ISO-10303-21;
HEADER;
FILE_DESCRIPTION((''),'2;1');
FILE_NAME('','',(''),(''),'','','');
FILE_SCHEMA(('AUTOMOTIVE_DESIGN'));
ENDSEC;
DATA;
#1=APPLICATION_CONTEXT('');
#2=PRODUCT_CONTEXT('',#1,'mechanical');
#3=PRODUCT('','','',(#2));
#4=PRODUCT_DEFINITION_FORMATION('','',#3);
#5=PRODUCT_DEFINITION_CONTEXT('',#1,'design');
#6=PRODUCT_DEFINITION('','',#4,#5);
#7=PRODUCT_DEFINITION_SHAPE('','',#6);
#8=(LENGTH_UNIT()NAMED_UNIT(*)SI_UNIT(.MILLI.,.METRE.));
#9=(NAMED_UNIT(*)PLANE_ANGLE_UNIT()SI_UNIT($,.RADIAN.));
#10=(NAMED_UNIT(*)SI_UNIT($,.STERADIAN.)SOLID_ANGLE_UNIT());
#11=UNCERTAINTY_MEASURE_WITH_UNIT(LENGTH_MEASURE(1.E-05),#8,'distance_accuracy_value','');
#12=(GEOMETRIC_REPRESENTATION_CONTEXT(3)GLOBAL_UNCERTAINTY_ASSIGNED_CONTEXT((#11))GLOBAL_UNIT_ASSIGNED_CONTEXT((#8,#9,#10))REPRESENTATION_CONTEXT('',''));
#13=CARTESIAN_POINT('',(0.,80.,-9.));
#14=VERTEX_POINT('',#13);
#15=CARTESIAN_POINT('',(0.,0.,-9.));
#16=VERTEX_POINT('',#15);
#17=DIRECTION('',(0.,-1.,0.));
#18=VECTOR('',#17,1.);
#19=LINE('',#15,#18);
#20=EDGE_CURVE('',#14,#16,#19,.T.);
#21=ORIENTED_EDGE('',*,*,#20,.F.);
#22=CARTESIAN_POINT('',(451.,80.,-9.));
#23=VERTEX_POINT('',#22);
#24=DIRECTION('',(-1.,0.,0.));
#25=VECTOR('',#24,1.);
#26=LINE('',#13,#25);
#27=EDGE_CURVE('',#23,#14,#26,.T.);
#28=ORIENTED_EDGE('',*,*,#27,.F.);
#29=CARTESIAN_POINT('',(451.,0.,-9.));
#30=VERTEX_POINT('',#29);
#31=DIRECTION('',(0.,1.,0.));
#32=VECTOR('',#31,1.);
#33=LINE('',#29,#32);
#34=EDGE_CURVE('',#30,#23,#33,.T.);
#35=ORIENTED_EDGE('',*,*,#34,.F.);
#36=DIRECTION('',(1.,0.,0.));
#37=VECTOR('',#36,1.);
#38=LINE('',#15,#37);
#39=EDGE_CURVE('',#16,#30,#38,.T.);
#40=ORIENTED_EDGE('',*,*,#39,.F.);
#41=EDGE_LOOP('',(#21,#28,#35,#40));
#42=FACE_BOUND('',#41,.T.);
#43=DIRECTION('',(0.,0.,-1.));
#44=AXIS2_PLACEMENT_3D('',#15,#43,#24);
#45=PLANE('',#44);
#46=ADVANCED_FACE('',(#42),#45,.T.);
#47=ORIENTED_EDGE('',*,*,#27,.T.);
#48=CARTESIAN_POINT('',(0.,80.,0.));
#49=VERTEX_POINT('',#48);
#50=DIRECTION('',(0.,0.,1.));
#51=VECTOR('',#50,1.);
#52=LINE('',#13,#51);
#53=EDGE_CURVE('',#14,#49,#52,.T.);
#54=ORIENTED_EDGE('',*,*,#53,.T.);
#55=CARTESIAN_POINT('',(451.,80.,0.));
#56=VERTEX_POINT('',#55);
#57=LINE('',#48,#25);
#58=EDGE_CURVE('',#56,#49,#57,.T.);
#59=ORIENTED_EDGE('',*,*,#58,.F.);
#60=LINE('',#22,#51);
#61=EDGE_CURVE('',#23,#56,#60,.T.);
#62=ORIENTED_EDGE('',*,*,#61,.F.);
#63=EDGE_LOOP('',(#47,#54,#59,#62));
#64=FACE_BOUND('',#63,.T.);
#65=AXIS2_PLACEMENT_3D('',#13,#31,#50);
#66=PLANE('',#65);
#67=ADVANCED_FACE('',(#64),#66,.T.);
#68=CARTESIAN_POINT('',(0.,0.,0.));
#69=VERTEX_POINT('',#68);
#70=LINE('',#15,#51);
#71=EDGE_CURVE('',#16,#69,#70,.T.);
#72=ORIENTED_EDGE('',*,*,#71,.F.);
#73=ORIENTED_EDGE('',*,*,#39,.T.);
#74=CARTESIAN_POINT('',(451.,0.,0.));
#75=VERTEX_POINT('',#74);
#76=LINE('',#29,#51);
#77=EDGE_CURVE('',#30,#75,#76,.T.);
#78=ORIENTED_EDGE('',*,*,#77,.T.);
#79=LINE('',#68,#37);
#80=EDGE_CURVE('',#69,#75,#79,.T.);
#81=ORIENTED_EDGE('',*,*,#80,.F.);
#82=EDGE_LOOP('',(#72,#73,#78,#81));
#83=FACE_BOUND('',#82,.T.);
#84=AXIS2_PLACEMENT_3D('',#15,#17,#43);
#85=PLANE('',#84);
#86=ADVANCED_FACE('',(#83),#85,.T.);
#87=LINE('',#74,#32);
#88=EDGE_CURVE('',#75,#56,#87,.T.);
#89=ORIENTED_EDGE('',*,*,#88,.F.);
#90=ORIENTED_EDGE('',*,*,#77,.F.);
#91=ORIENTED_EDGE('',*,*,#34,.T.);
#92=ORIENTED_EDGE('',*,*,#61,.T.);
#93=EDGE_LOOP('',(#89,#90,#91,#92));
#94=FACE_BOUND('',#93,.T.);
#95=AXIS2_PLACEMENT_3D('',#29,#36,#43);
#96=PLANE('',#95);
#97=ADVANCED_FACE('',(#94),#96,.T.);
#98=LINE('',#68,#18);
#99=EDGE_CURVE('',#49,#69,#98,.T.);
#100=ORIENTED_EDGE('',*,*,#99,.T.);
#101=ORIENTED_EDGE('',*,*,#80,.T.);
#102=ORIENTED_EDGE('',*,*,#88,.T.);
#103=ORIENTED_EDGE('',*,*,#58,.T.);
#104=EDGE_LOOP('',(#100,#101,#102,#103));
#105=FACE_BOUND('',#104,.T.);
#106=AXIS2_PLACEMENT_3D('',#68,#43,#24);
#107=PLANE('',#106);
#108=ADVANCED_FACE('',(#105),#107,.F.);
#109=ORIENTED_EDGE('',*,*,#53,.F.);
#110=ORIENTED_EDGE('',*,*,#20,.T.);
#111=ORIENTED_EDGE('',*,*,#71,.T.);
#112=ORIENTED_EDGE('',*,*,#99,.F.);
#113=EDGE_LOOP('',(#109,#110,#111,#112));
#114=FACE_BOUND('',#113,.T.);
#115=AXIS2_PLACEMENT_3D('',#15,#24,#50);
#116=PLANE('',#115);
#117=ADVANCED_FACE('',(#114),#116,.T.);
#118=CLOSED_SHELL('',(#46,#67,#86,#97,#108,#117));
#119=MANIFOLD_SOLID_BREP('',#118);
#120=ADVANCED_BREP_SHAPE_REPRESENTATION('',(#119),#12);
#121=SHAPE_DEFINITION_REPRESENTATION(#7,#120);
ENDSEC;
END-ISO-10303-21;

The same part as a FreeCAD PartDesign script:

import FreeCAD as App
import Part
import Sketcher
from FreeCAD import Vector


def add_polygon(sketch, points):
    """Adds a closed chain of lines whose ends are joined by coincident constraints."""
    first, n = sketch.GeometryCount, len(points)
    for a, b in zip(points, points[1:] + points[:1]):
        sketch.addGeometry(Part.LineSegment(App.Vector(*a, 0), App.Vector(*b, 0)), False)
    for i in range(n):
        sketch.addConstraint(Sketcher.Constraint("Coincident", first + i, 2, first + (i + 1) % n, 1))

doc = App.newDocument("Part")
params = doc.addObject("Spreadsheet::Sheet", "Params")
for row, (alias, value) in enumerate([
    ("sketch1_width", "451 mm"),
    ("sketch1_height", "80 mm"),
    ("pad1_length", "9 mm"),
], start=1):
    params.set(f"A{row}", alias)
    params.set(f"B{row}", "=" + value)
    params.setAlias(f"B{row}", alias)

body = doc.addObject("PartDesign::Body", "Body")

sketch1 = doc.addObject("Sketcher::SketchObject", "Sketch")
body.addObject(sketch1)
sketch1.AttachmentSupport = (doc.XY_Plane, [""])
sketch1.MapMode = "FlatFace"
add_polygon(sketch1, [(0, 80), (0, 0), (451, 0), (451, 80)])
sketch1.addConstraint([
    Sketcher.Constraint("Vertical", 0),
    Sketcher.Constraint("Horizontal", 1),
    Sketcher.Constraint("Vertical", 2),
    Sketcher.Constraint("Horizontal", 3),
    Sketcher.Constraint("Coincident", 0, 2, -1, 1),
    Sketcher.Constraint("DistanceX", 1, 1, 1, 2, 451.0),
    Sketcher.Constraint("DistanceY", 0, 2, 0, 1, 80.0),
])
sketch1.setExpression("Constraints[9]", "Params.sketch1_width")
sketch1.setExpression("Constraints[10]", "Params.sketch1_height")
pad1 = doc.addObject("PartDesign::Pad", "Pad")
body.addObject(pad1)
pad1.Profile = sketch1
pad1.setExpression("Length", "Params.pad1_length")
pad1.Reversed = True

doc.recompute()
